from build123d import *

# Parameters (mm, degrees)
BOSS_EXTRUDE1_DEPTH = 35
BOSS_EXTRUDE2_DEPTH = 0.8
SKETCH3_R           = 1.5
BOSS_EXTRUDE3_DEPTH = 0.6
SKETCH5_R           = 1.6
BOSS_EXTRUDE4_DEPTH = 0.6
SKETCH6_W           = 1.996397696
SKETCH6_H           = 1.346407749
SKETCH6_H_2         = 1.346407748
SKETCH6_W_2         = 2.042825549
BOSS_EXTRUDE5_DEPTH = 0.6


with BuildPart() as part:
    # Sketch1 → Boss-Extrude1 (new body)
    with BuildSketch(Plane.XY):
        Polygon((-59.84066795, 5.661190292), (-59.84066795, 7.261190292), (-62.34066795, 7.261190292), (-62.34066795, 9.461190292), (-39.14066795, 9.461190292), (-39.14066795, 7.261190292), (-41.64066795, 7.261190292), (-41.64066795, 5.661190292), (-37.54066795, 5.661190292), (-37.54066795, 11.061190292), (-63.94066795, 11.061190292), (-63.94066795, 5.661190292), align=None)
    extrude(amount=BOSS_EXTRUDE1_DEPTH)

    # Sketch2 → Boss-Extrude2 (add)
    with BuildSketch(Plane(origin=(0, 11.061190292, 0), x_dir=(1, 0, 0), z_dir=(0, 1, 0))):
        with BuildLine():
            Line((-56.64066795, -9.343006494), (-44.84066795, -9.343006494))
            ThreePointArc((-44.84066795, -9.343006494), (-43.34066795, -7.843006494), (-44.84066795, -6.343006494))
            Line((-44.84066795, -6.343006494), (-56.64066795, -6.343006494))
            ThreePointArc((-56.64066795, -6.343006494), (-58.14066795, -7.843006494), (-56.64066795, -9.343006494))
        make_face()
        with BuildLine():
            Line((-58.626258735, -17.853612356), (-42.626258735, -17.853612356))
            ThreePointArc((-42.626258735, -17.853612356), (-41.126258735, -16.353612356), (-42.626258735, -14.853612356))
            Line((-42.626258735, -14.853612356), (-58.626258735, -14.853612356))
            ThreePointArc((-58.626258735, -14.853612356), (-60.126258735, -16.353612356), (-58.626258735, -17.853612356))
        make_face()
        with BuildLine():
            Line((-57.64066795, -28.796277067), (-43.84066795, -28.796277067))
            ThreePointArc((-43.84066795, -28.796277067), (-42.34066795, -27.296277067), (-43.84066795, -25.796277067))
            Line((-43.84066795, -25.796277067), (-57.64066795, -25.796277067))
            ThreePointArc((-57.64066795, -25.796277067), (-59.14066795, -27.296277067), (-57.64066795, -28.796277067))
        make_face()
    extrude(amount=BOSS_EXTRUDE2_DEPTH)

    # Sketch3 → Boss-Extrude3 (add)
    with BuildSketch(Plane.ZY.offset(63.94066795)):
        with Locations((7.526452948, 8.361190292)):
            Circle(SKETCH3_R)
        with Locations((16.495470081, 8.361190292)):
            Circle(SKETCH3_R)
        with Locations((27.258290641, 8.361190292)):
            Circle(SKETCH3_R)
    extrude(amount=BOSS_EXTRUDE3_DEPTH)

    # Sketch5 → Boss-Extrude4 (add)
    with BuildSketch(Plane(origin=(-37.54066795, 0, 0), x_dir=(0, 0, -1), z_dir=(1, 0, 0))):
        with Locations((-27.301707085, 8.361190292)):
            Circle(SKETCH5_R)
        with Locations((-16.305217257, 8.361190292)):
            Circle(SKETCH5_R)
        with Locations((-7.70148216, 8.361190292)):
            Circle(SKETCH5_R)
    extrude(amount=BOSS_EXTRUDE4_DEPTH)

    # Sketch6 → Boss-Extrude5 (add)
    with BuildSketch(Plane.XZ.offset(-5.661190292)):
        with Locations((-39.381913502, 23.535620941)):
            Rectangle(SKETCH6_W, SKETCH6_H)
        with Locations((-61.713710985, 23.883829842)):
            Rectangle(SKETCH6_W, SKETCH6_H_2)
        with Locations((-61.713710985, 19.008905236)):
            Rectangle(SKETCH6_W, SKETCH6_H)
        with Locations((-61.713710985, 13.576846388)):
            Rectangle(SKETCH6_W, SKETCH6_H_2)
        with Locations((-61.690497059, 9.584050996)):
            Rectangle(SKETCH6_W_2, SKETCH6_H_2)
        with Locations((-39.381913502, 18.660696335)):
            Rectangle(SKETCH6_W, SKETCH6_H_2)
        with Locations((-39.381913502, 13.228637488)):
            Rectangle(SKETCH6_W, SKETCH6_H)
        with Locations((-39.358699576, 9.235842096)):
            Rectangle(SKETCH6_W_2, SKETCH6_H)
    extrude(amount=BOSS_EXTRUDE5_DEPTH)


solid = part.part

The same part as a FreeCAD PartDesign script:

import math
import FreeCAD as App
import Part
import Sketcher
from FreeCAD import Vector

doc = App.newDocument("Part")
body = doc.addObject("PartDesign::Body", "Body")

# Sketch on XY plane
sketch1 = body.newObject("Sketcher::SketchObject", "Sketch")
sketch1.AttachmentSupport = (doc.getObject("XY_Plane"), [""])
sketch1.MapMode = "FlatFace"
sketch1.addGeometry([
    Part.LineSegment(Vector(-59.840668, 5.66119, 0), Vector(-59.840668, 7.26119, 0)),  # 0
    Part.LineSegment(Vector(-59.840668, 7.26119, 0), Vector(-62.340668, 7.26119, 0)),  # 1
    Part.LineSegment(Vector(-62.340668, 7.26119, 0), Vector(-62.340668, 9.46119, 0)),  # 2
    Part.LineSegment(Vector(-62.340668, 9.46119, 0), Vector(-39.140668, 9.46119, 0)),  # 3
    Part.LineSegment(Vector(-39.140668, 9.46119, 0), Vector(-39.140668, 7.26119, 0)),  # 4
    Part.LineSegment(Vector(-39.140668, 7.26119, 0), Vector(-41.640668, 7.26119, 0)),  # 5
    Part.LineSegment(Vector(-41.640668, 7.26119, 0), Vector(-41.640668, 5.66119, 0)),  # 6
    Part.LineSegment(Vector(-41.640668, 5.66119, 0), Vector(-37.540668, 5.66119, 0)),  # 7
    Part.LineSegment(Vector(-37.540668, 5.66119, 0), Vector(-37.540668, 11.06119, 0)),  # 8
    Part.LineSegment(Vector(-37.540668, 11.06119, 0), Vector(-63.940668, 11.06119, 0)),  # 9
    Part.LineSegment(Vector(-63.940668, 11.06119, 0), Vector(-63.940668, 5.66119, 0)),  # 10
    Part.LineSegment(Vector(-63.940668, 5.66119, 0), Vector(-59.840668, 5.66119, 0)),  # 11
], False)
sketch1.addConstraint([
    Sketcher.Constraint("Coincident", 0, 2, 1, 1),
    Sketcher.Constraint("Coincident", 1, 2, 2, 1),
    Sketcher.Constraint("Coincident", 2, 2, 3, 1),
    Sketcher.Constraint("Coincident", 3, 2, 4, 1),
    Sketcher.Constraint("Coincident", 4, 2, 5, 1),
    Sketcher.Constraint("Coincident", 5, 2, 6, 1),
    Sketcher.Constraint("Coincident", 6, 2, 7, 1),
    Sketcher.Constraint("Coincident", 7, 2, 8, 1),
    Sketcher.Constraint("Coincident", 8, 2, 9, 1),
    Sketcher.Constraint("Coincident", 9, 2, 10, 1),
    Sketcher.Constraint("Coincident", 10, 2, 11, 1),
    Sketcher.Constraint("Coincident", 11, 2, 0, 1),
    Sketcher.Constraint("Vertical", 0),
    Sketcher.Constraint("Horizontal", 1),
    Sketcher.Constraint("Vertical", 2),
    Sketcher.Constraint("Horizontal", 3),
    Sketcher.Constraint("Vertical", 4),
    Sketcher.Constraint("Horizontal", 5),
    Sketcher.Constraint("Vertical", 6),
    Sketcher.Constraint("Horizontal", 7),
    Sketcher.Constraint("Vertical", 8),
    Sketcher.Constraint("Horizontal", 9),
    Sketcher.Constraint("Vertical", 10),
    Sketcher.Constraint("Horizontal", 11),
    Sketcher.Constraint("Horizontal", 1, 2, 4, 2),
    Sketcher.Constraint("Horizontal", 7, 2, 10, 2),
    Sketcher.Constraint("Equal", 1, 5),
    Sketcher.Constraint("Equal", 7, 11),
    Sketcher.Constraint("DistanceX", 1, 2, 1, 1, 2.5),
    Sketcher.Constraint("DistanceX", 3, 1, 3, 2, 23.2),
    Sketcher.Constraint("DistanceX", 7, 1, 7, 2, 4.1),
    Sketcher.Constraint("DistanceY", 0, 1, 0, 2, 1.6),
    Sketcher.Constraint("DistanceY", 2, 1, 2, 2, 2.2),
    Sketcher.Constraint("DistanceY", 8, 1, 8, 2, 5.4),
    Sketcher.Constraint("DistanceY", -1, 1, 0, 2, 7.26119),
    Sketcher.Constraint("DistanceX", 0, 2, -1, 1, 59.840668),
])
pad1 = body.newObject("PartDesign::Pad", "Pad")
pad1.Profile = sketch1
pad1.Length = 35

# Sketch on XZ plane
sketch2 = body.newObject("Sketcher::SketchObject", "Sketch001")
sketch2.AttachmentSupport = (doc.getObject("XZ_Plane"), [""])
sketch2.MapMode = "FlatFace"
sketch2.AttachmentOffset = App.Placement(Vector(0, 0, -11.06119), App.Rotation())
sketch2.addGeometry([
    Part.LineSegment(Vector(-56.640668, 9.343006, 0), Vector(-44.840668, 9.343006, 0)),  # 0
    Part.ArcOfCircle(Part.Circle(Vector(-44.840668, 7.843006, 0), Vector(0, 0, 1), 1.5), math.radians(-90), math.radians(90)),  # 1
    Part.LineSegment(Vector(-44.840668, 6.343006, 0), Vector(-56.640668, 6.343006, 0)),  # 2
    Part.ArcOfCircle(Part.Circle(Vector(-56.640668, 7.843006, 0), Vector(0, 0, 1), 1.5), math.radians(90), math.radians(270)),  # 3
    Part.LineSegment(Vector(-58.626259, 17.853612, 0), Vector(-42.626259, 17.853612, 0)),  # 4
    Part.ArcOfCircle(Part.Circle(Vector(-42.626259, 16.353612, 0), Vector(0, 0, 1), 1.5), math.radians(-90), math.radians(90)),  # 5
    Part.LineSegment(Vector(-42.626259, 14.853612, 0), Vector(-58.626259, 14.853612, 0)),  # 6
    Part.ArcOfCircle(Part.Circle(Vector(-58.626259, 16.353612, 0), Vector(0, 0, 1), 1.5), math.radians(90), math.radians(270)),  # 7
    Part.LineSegment(Vector(-57.640668, 28.796277, 0), Vector(-43.840668, 28.796277, 0)),  # 8
    Part.ArcOfCircle(Part.Circle(Vector(-43.840668, 27.296277, 0), Vector(0, 0, 1), 1.5), math.radians(-90), math.radians(90)),  # 9
    Part.LineSegment(Vector(-43.840668, 25.796277, 0), Vector(-57.640668, 25.796277, 0)),  # 10
    Part.ArcOfCircle(Part.Circle(Vector(-57.640668, 27.296277, 0), Vector(0, 0, 1), 1.5), math.radians(90), math.radians(270)),  # 11
], False)
sketch2.addConstraint([
    Sketcher.Constraint("Tangent", 0, 2, 1, 2),
    Sketcher.Constraint("Tangent", 1, 1, 2, 1),
    Sketcher.Constraint("Tangent", 2, 2, 3, 2),
    Sketcher.Constraint("Tangent", 3, 1, 0, 1),
    Sketcher.Constraint("Tangent", 4, 2, 5, 2),
    Sketcher.Constraint("Tangent", 5, 1, 6, 1),
    Sketcher.Constraint("Tangent", 6, 2, 7, 2),
    Sketcher.Constraint("Tangent", 7, 1, 4, 1),
    Sketcher.Constraint("Tangent", 8, 2, 9, 2),
    Sketcher.Constraint("Tangent", 9, 1, 10, 1),
    Sketcher.Constraint("Tangent", 10, 2, 11, 2),
    Sketcher.Constraint("Tangent", 11, 1, 8, 1),
    Sketcher.Constraint("Horizontal", 0),
    Sketcher.Constraint("Horizontal", 2),
    Sketcher.Constraint("Horizontal", 4),
    Sketcher.Constraint("Horizontal", 6),
    Sketcher.Constraint("Horizontal", 8),
    Sketcher.Constraint("Horizontal", 10),
    Sketcher.Constraint("Equal", 3, 5),
    Sketcher.Constraint("Equal", 7, 9),
    Sketcher.Constraint("Radius", 1, 1.5),
    Sketcher.Constraint("DistanceX", 4, 1, 4, 2, 16.0),
    Sketcher.Constraint("DistanceX", 0, 1, 0, 2, 11.8),
    Sketcher.Constraint("DistanceX", 8, 1, 8, 2, 13.8),
    Sketcher.Constraint("DistanceX", 1, 3, 9, 3, 1.0),
    Sketcher.Constraint("DistanceX", 5, 3, -1, 1, 42.626259),
    Sketcher.Constraint("DistanceX", 1, 3, 5, 3, 2.214409),
    Sketcher.Constraint("DistanceY", 1, 3, 9, 3, 19.453271),
    Sketcher.Constraint("DistanceY", -1, 1, 1, 3, 7.843006),
    Sketcher.Constraint("DistanceY", -1, 1, 5, 3, 16.353612),
])
pad2 = body.newObject("PartDesign::Pad", "Pad001")
pad2.Profile = sketch2
pad2.Length = 0.8
pad2.Reversed = True

# Sketch on YZ plane
sketch3 = body.newObject("Sketcher::SketchObject", "Sketch002")
sketch3.AttachmentSupport = (doc.getObject("YZ_Plane"), [""])
sketch3.MapMode = "FlatFace"
sketch3.AttachmentOffset = App.Placement(Vector(0, 0, -63.940668), App.Rotation())
sketch3.addGeometry([
    Part.Circle(Vector(8.36119, 7.526453, 0), Vector(0, 0, 1), 1.5),
    Part.Circle(Vector(8.36119, 16.49547, 0), Vector(0, 0, 1), 1.5),
    Part.Circle(Vector(8.36119, 27.258291, 0), Vector(0, 0, 1), 1.5),
], False)
sketch3.addConstraint([
    Sketcher.Constraint("Equal", 0, 1),
    Sketcher.Constraint("Equal", 1, 2),
    Sketcher.Constraint("Vertical", 0, 3, 1, 3),
    Sketcher.Constraint("Vertical", 1, 3, 2, 3),
    Sketcher.Constraint("Diameter", 0, 3.0),
    Sketcher.Constraint("DistanceX", -1, 1, 0, 3, 8.36119),
    Sketcher.Constraint("DistanceY", -1, 1, 1, 3, 16.49547),
    Sketcher.Constraint("DistanceY", -1, 1, 2, 3, 27.258291),
    Sketcher.Constraint("DistanceY", -1, 1, 0, 3, 7.526453),
])
pad3 = body.newObject("PartDesign::Pad", "Pad002")
pad3.Profile = sketch3
pad3.Length = 0.6
pad3.Reversed = True

# Sketch on YZ plane
sketch4 = body.newObject("Sketcher::SketchObject", "Sketch003")
sketch4.AttachmentSupport = (doc.getObject("YZ_Plane"), [""])
sketch4.MapMode = "FlatFace"
sketch4.AttachmentOffset = App.Placement(Vector(0, 0, -37.540668), App.Rotation())
sketch4.addGeometry([
    Part.Circle(Vector(8.36119, 27.301707, 0), Vector(0, 0, 1), 1.6),
    Part.Circle(Vector(8.36119, 16.305217, 0), Vector(0, 0, 1), 1.6),
    Part.Circle(Vector(8.36119, 7.701482, 0), Vector(0, 0, 1), 1.6),
], False)
sketch4.addConstraint([
    Sketcher.Constraint("Equal", 0, 1),
    Sketcher.Constraint("Equal", 1, 2),
    Sketcher.Constraint("Vertical", 0, 3, 1, 3),
    Sketcher.Constraint("Vertical", 1, 3, 2, 3),
    Sketcher.Constraint("Diameter", 0, 3.2),
    Sketcher.Constraint("DistanceX", -1, 1, 0, 3, 8.36119),
    Sketcher.Constraint("DistanceY", 1, 3, 0, 3, 10.99649),
    Sketcher.Constraint("DistanceY", -1, 1, 0, 3, 27.301707),
    Sketcher.Constraint("DistanceY", -1, 1, 2, 3, 7.701482),
])
pad4 = body.newObject("PartDesign::Pad", "Pad003")
pad4.Profile = sketch4
pad4.Length = 0.6

# Sketch on XZ plane
sketch5 = body.newObject("Sketcher::SketchObject", "Sketch004")
sketch5.AttachmentSupport = (doc.getObject("XZ_Plane"), [""])
sketch5.MapMode = "FlatFace"
sketch5.AttachmentOffset = App.Placement(Vector(0, 0, -5.66119), App.Rotation())
sketch5.addGeometry([
    Part.LineSegment(Vector(-40.380112, 24.208825, 0), Vector(-40.380112, 22.862417, 0)),  # 0
    Part.LineSegment(Vector(-40.380112, 22.862417, 0), Vector(-38.383715, 22.862417, 0)),  # 1
    Part.LineSegment(Vector(-38.383715, 22.862417, 0), Vector(-38.383715, 24.208825, 0)),  # 2
    Part.LineSegment(Vector(-38.383715, 24.208825, 0), Vector(-40.380112, 24.208825, 0)),  # 3
    Part.LineSegment(Vector(-62.71191, 24.557034, 0), Vector(-62.71191, 23.210626, 0)),  # 4
    Part.LineSegment(Vector(-62.71191, 23.210626, 0), Vector(-60.715512, 23.210626, 0)),  # 5
    Part.LineSegment(Vector(-60.715512, 23.210626, 0), Vector(-60.715512, 24.557034, 0)),  # 6
    Part.LineSegment(Vector(-60.715512, 24.557034, 0), Vector(-62.71191, 24.557034, 0)),  # 7
    Part.LineSegment(Vector(-62.71191, 19.682109, 0), Vector(-62.71191, 18.335701, 0)),  # 8
    Part.LineSegment(Vector(-62.71191, 18.335701, 0), Vector(-60.715512, 18.335701, 0)),  # 9
    Part.LineSegment(Vector(-60.715512, 18.335701, 0), Vector(-60.715512, 19.682109, 0)),  # 10
    Part.LineSegment(Vector(-60.715512, 19.682109, 0), Vector(-62.71191, 19.682109, 0)),  # 11
    Part.LineSegment(Vector(-62.71191, 14.25005, 0), Vector(-62.71191, 12.903643, 0)),  # 12
    Part.LineSegment(Vector(-62.71191, 12.903643, 0), Vector(-60.715512, 12.903643, 0)),  # 13
    Part.LineSegment(Vector(-60.715512, 12.903643, 0), Vector(-60.715512, 14.25005, 0)),  # 14
    Part.LineSegment(Vector(-60.715512, 14.25005, 0), Vector(-62.71191, 14.25005, 0)),  # 15
    Part.LineSegment(Vector(-62.71191, 10.257255, 0), Vector(-62.71191, 8.910847, 0)),  # 16
    Part.LineSegment(Vector(-62.71191, 8.910847, 0), Vector(-60.669084, 8.910847, 0)),  # 17
    Part.LineSegment(Vector(-60.669084, 8.910847, 0), Vector(-60.669084, 10.257255, 0)),  # 18
    Part.LineSegment(Vector(-60.669084, 10.257255, 0), Vector(-62.71191, 10.257255, 0)),  # 19
    Part.LineSegment(Vector(-40.380112, 19.3339, 0), Vector(-40.380112, 17.987492, 0)),  # 20
    Part.LineSegment(Vector(-40.380112, 17.987492, 0), Vector(-38.383715, 17.987492, 0)),  # 21
    Part.LineSegment(Vector(-38.383715, 17.987492, 0), Vector(-38.383715, 19.3339, 0)),  # 22
    Part.LineSegment(Vector(-38.383715, 19.3339, 0), Vector(-40.380112, 19.3339, 0)),  # 23
    Part.LineSegment(Vector(-40.380112, 13.901841, 0), Vector(-40.380112, 12.555434, 0)),  # 24
    Part.LineSegment(Vector(-40.380112, 12.555434, 0), Vector(-38.383715, 12.555434, 0)),  # 25
    Part.LineSegment(Vector(-38.383715, 12.555434, 0), Vector(-38.383715, 13.901841, 0)),  # 26
    Part.LineSegment(Vector(-38.383715, 13.901841, 0), Vector(-40.380112, 13.901841, 0)),  # 27
    Part.LineSegment(Vector(-40.380112, 9.909046, 0), Vector(-40.380112, 8.562638, 0)),  # 28
    Part.LineSegment(Vector(-40.380112, 8.562638, 0), Vector(-38.337287, 8.562638, 0)),  # 29
    Part.LineSegment(Vector(-38.337287, 8.562638, 0), Vector(-38.337287, 9.909046, 0)),  # 30
    Part.LineSegment(Vector(-38.337287, 9.909046, 0), Vector(-40.380112, 9.909046, 0)),  # 31
], False)
sketch5.addConstraint([
    Sketcher.Constraint("Coincident", 0, 2, 1, 1),
    Sketcher.Constraint("Coincident", 1, 2, 2, 1),
    Sketcher.Constraint("Coincident", 2, 2, 3, 1),
    Sketcher.Constraint("Coincident", 3, 2, 0, 1),
    Sketcher.Constraint("Coincident", 4, 2, 5, 1),
    Sketcher.Constraint("Coincident", 5, 2, 6, 1),
    Sketcher.Constraint("Coincident", 6, 2, 7, 1),
    Sketcher.Constraint("Coincident", 7, 2, 4, 1),
    Sketcher.Constraint("Coincident", 8, 2, 9, 1),
    Sketcher.Constraint("Coincident", 9, 2, 10, 1),
    Sketcher.Constraint("Coincident", 10, 2, 11, 1),
    Sketcher.Constraint("Coincident", 11, 2, 8, 1),
    Sketcher.Constraint("Coincident", 12, 2, 13, 1),
    Sketcher.Constraint("Coincident", 13, 2, 14, 1),
    Sketcher.Constraint("Coincident", 14, 2, 15, 1),
    Sketcher.Constraint("Coincident", 15, 2, 12, 1),
    Sketcher.Constraint("Coincident", 16, 2, 17, 1),
    Sketcher.Constraint("Coincident", 17, 2, 18, 1),
    Sketcher.Constraint("Coincident", 18, 2, 19, 1),
    Sketcher.Constraint("Coincident", 19, 2, 16, 1),
    Sketcher.Constraint("Coincident", 20, 2, 21, 1),
    Sketcher.Constraint("Coincident", 21, 2, 22, 1),
    Sketcher.Constraint("Coincident", 22, 2, 23, 1),
    Sketcher.Constraint("Coincident", 23, 2, 20, 1),
    Sketcher.Constraint("Coincident", 24, 2, 25, 1),
    Sketcher.Constraint("Coincident", 25, 2, 26, 1),
    Sketcher.Constraint("Coincident", 26, 2, 27, 1),
    Sketcher.Constraint("Coincident", 27, 2, 24, 1),
    Sketcher.Constraint("Coincident", 28, 2, 29, 1),
    Sketcher.Constraint("Coincident", 29, 2, 30, 1),
    Sketcher.Constraint("Coincident", 30, 2, 31, 1),
    Sketcher.Constraint("Coincident", 31, 2, 28, 1),
    Sketcher.Constraint("Vertical", 0),
    Sketcher.Constraint("Horizontal", 1),
    Sketcher.Constraint("Vertical", 2),
    Sketcher.Constraint("Horizontal", 3),
    Sketcher.Constraint("Vertical", 4),
    Sketcher.Constraint("Horizontal", 5),
    Sketcher.Constraint("Vertical", 6),
    Sketcher.Constraint("Horizontal", 7),
    Sketcher.Constraint("Vertical", 8),
    Sketcher.Constraint("Horizontal", 9),
    Sketcher.Constraint("Vertical", 10),
    Sketcher.Constraint("Horizontal", 11),
    Sketcher.Constraint("Vertical", 12),
    Sketcher.Constraint("Horizontal", 13),
    Sketcher.Constraint("Vertical", 14),
    Sketcher.Constraint("Horizontal", 15),
    Sketcher.Constraint("Vertical", 16),
    Sketcher.Constraint("Horizontal", 17),
    Sketcher.Constraint("Vertical", 18),
    Sketcher.Constraint("Horizontal", 19),
    Sketcher.Constraint("Vertical", 20),
    Sketcher.Constraint("Horizontal", 21),
    Sketcher.Constraint("Vertical", 22),
    Sketcher.Constraint("Horizontal", 23),
    Sketcher.Constraint("Vertical", 24),
    Sketcher.Constraint("Horizontal", 25),
    Sketcher.Constraint("Vertical", 26),
    Sketcher.Constraint("Horizontal", 27),
    Sketcher.Constraint("Vertical", 28),
    Sketcher.Constraint("Horizontal", 29),
    Sketcher.Constraint("Vertical", 30),
    Sketcher.Constraint("Horizontal", 31),
    Sketcher.Constraint("Vertical", 7, 2, 8, 2),
    Sketcher.Constraint("Vertical", 6, 2, 9, 2),
    Sketcher.Constraint("Vertical", 11, 2, 12, 2),
    Sketcher.Constraint("Vertical", 10, 2, 13, 2),
    Sketcher.Constraint("Vertical", 15, 2, 16, 2),
    Sketcher.Constraint("Vertical", 3, 2, 20, 2),
    Sketcher.Constraint("Vertical", 2, 2, 21, 2),
    Sketcher.Constraint("Vertical", 23, 2, 24, 2),
    Sketcher.Constraint("Vertical", 22, 2, 25, 2),
    Sketcher.Constraint("Vertical", 27, 2, 28, 2),
    Sketcher.Constraint("Equal", 3, 5),
    Sketcher.Constraint("Equal", 19, 29),
    Sketcher.Constraint("Equal", 2, 4),
    Sketcher.Constraint("Equal", 6, 8),
    Sketcher.Constraint("Equal", 10, 12),
    Sketcher.Constraint("Equal", 14, 16),
    Sketcher.Constraint("Equal", 18, 20),
    Sketcher.Constraint("Equal", 22, 24),
    Sketcher.Constraint("Equal", 26, 28),
    Sketcher.Constraint("DistanceY", -1, 1, 8, 2, 18.335701),
    Sketcher.Constraint("DistanceY", -1, 1, 22, 2, 19.3339),
    Sketcher.Constraint("DistanceY", 4, 2, 3, 2, 0.998199),
    Sketcher.Constraint("DistanceX", 5, 2, 0, 2, 20.3354),
    Sketcher.Constraint("DistanceX", 1, 1, 1, 2, 1.996398),
    Sketcher.Constraint("DistanceX", 17, 1, 17, 2, 2.042826),
    Sketcher.Constraint("DistanceY", 0, 2, 0, 1, 1.346408),
    Sketcher.Constraint("DistanceX", 4, 2, -1, 1, 62.71191),
    Sketcher.Constraint("DistanceY", -1, 1, 14, 2, 14.25005),
    Sketcher.Constraint("DistanceY", -1, 1, 26, 2, 13.901841),
    Sketcher.Constraint("DistanceY", -1, 1, 28, 2, 8.562638),
    Sketcher.Constraint("DistanceY", -1, 1, 0, 2, 22.862417),
    Sketcher.Constraint("DistanceY", -1, 1, 16, 2, 8.910847),
])
pad5 = body.newObject("PartDesign::Pad", "Pad004")
pad5.Profile = sketch5
pad5.Length = 0.6

doc.recompute()
